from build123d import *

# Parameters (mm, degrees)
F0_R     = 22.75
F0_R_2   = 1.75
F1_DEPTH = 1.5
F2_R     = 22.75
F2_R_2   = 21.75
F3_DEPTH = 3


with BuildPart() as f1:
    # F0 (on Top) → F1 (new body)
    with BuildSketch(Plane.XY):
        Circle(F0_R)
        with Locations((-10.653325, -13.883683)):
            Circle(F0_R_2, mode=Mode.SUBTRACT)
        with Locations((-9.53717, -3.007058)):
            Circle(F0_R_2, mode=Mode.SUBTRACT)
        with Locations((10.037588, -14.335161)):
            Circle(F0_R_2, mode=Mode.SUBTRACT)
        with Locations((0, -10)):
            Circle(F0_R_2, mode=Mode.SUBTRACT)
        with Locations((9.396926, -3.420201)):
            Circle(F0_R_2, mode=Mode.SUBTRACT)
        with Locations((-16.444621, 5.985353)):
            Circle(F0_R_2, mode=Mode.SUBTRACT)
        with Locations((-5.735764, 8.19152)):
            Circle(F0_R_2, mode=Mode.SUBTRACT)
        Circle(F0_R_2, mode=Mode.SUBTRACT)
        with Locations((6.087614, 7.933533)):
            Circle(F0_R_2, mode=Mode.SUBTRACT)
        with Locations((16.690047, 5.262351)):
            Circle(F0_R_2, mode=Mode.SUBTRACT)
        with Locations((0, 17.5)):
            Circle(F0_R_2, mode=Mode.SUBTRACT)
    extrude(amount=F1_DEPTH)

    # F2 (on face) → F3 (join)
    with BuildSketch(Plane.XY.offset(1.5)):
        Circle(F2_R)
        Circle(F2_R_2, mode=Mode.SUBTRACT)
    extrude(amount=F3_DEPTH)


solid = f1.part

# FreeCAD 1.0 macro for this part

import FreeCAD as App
import Part
import Sketcher
from FreeCAD import Vector
Q = App.Units.Quantity

doc = App.newDocument("Part")
body = doc.addObject("PartDesign::Body", "Body")

# Sketch on XY plane
sketch1 = body.newObject("Sketcher::SketchObject", "Sketch")
sketch1.AttachmentSupport = (doc.getObject("XY_Plane"), [""])
sketch1.MapMode = "FlatFace"
sketch1.addGeometry([
    Part.Circle(Vector(0, 0, 0), Vector(0, 0, 1), 22.8),  # 0
    Part.Circle(Vector(-10.7, -13.9, 0), Vector(0, 0, 1), 1.8),  # 1
    Part.Circle(Vector(0, -10, 0), Vector(0, 0, 1), 1.8),  # 2
    Part.Circle(Vector(-9.5, -3, 0), Vector(0, 0, 1), 1.8),  # 3
    Part.Circle(Vector(0, 0, 0), Vector(0, 0, 1), 1.8),  # 4
    Part.Circle(Vector(10, -14.3, 0), Vector(0, 0, 1), 1.8),  # 5
    Part.Circle(Vector(9.4, -3.4, 0), Vector(0, 0, 1), 1.8),  # 6
    Part.Circle(Vector(-16.4, 6, 0), Vector(0, 0, 1), 1.8),  # 7
    Part.Circle(Vector(-5.7, 8.2, 0), Vector(0, 0, 1), 1.8),  # 8
    Part.Circle(Vector(0, 17.5, 0), Vector(0, 0, 1), 1.8),  # 9
    Part.Circle(Vector(6.1, 7.9, 0), Vector(0, 0, 1), 1.8),  # 10
    Part.Circle(Vector(16.7, 5.3, 0), Vector(0, 0, 1), 1.8),  # 11
], False)
sketch1.addConstraint([
    Sketcher.Constraint("Coincident", 0, 3, -1, 1),
    Sketcher.Constraint("Coincident", 4, 3, -1, 1),
    Sketcher.Constraint("Equal", 1, 2),
    Sketcher.Constraint("Equal", 2, 3),
    Sketcher.Constraint("Equal", 3, 4),
    Sketcher.Constraint("Equal", 4, 5),
    Sketcher.Constraint("Equal", 5, 6),
    Sketcher.Constraint("Equal", 6, 7),
    Sketcher.Constraint("Equal", 7, 8),
    Sketcher.Constraint("Equal", 8, 9),
    Sketcher.Constraint("Equal", 9, 10),
    Sketcher.Constraint("Equal", 10, 11),
    Sketcher.Constraint("PointOnObject", 2, 3, -2),
    Sketcher.Constraint("PointOnObject", 9, 3, -2),
    Sketcher.Constraint("Diameter", 0, Q("45.5 mm")),
    Sketcher.Constraint("Diameter", 1, Q("3.5 mm")),
    Sketcher.Constraint("DistanceY", 2, 3, -1, 1, Q("10 mm")),
    Sketcher.Constraint("DistanceY", -1, 1, 9, 3, Q("17.5 mm")),
    Sketcher.Constraint("DistanceY", 6, 3, -1, 1, Q("3.420201 mm")),
    Sketcher.Constraint("DistanceX", 3, 3, -1, 1, Q("9.53717 mm")),
    Sketcher.Constraint("DistanceY", 5, 3, -1, 1, Q("14.335161 mm")),
    Sketcher.Constraint("DistanceX", 7, 3, -1, 1, Q("16.444621 mm")),
    Sketcher.Constraint("DistanceY", -1, 1, 8, 3, Q("8.19152 mm")),
    Sketcher.Constraint("DistanceY", -1, 1, 11, 3, Q("5.262351 mm")),
    Sketcher.Constraint("DistanceX", 6, 3, 5, 3, Q("0.640662 mm")),
    Sketcher.Constraint("DistanceY", 3, 3, 7, 3, Q("8.992411 mm")),
    Sketcher.Constraint("DistanceY", 3, 3, 8, 3, Q("11.198578 mm")),
    Sketcher.Constraint("DistanceX", 8, 3, 6, 3, Q("15.13269 mm")),
    Sketcher.Constraint("DistanceY", 11, 3, 10, 3, Q("2.671182 mm")),
    Sketcher.Constraint("DistanceX", 6, 3, 11, 3, Q("7.293121 mm")),
    Sketcher.Constraint("DistanceX", 1, 3, -1, 1, Q("10.653325 mm")),
    Sketcher.Constraint("DistanceY", 1, 3, -1, 1, Q("13.883683 mm")),
    Sketcher.Constraint("DistanceX", -1, 1, 5, 3, Q("10.037588 mm")),
    Sketcher.Constraint("DistanceX", -1, 1, 10, 3, Q("6.087614 mm")),
])
pad1 = body.newObject("PartDesign::Pad", "Pad")
pad1.Profile = sketch1
pad1.Length = 1.5

# Sketch on XY plane
sketch2 = body.newObject("Sketcher::SketchObject", "Sketch001")
sketch2.AttachmentSupport = (doc.getObject("XY_Plane"), [""])
sketch2.MapMode = "FlatFace"
sketch2.AttachmentOffset = App.Placement(Vector(0, 0, 1.5), App.Rotation())
sketch2.addGeometry([
    Part.Circle(Vector(0, 0, 0), Vector(0, 0, 1), 23),
    Part.Circle(Vector(0, 0, 0), Vector(0, 0, 1), 22),
], False)
sketch2.addConstraint([
    Sketcher.Constraint("Coincident", 0, 3, -1, 1),
    Sketcher.Constraint("Coincident", 1, 3, -1, 1),
    Sketcher.Constraint("Diameter", 0, Q("45.5 mm")),
    Sketcher.Constraint("Diameter", 1, Q("43.5 mm")),
])
pad2 = body.newObject("PartDesign::Pad", "Pad001")
pad2.Profile = sketch2
pad2.Length = 3

doc.recompute()
